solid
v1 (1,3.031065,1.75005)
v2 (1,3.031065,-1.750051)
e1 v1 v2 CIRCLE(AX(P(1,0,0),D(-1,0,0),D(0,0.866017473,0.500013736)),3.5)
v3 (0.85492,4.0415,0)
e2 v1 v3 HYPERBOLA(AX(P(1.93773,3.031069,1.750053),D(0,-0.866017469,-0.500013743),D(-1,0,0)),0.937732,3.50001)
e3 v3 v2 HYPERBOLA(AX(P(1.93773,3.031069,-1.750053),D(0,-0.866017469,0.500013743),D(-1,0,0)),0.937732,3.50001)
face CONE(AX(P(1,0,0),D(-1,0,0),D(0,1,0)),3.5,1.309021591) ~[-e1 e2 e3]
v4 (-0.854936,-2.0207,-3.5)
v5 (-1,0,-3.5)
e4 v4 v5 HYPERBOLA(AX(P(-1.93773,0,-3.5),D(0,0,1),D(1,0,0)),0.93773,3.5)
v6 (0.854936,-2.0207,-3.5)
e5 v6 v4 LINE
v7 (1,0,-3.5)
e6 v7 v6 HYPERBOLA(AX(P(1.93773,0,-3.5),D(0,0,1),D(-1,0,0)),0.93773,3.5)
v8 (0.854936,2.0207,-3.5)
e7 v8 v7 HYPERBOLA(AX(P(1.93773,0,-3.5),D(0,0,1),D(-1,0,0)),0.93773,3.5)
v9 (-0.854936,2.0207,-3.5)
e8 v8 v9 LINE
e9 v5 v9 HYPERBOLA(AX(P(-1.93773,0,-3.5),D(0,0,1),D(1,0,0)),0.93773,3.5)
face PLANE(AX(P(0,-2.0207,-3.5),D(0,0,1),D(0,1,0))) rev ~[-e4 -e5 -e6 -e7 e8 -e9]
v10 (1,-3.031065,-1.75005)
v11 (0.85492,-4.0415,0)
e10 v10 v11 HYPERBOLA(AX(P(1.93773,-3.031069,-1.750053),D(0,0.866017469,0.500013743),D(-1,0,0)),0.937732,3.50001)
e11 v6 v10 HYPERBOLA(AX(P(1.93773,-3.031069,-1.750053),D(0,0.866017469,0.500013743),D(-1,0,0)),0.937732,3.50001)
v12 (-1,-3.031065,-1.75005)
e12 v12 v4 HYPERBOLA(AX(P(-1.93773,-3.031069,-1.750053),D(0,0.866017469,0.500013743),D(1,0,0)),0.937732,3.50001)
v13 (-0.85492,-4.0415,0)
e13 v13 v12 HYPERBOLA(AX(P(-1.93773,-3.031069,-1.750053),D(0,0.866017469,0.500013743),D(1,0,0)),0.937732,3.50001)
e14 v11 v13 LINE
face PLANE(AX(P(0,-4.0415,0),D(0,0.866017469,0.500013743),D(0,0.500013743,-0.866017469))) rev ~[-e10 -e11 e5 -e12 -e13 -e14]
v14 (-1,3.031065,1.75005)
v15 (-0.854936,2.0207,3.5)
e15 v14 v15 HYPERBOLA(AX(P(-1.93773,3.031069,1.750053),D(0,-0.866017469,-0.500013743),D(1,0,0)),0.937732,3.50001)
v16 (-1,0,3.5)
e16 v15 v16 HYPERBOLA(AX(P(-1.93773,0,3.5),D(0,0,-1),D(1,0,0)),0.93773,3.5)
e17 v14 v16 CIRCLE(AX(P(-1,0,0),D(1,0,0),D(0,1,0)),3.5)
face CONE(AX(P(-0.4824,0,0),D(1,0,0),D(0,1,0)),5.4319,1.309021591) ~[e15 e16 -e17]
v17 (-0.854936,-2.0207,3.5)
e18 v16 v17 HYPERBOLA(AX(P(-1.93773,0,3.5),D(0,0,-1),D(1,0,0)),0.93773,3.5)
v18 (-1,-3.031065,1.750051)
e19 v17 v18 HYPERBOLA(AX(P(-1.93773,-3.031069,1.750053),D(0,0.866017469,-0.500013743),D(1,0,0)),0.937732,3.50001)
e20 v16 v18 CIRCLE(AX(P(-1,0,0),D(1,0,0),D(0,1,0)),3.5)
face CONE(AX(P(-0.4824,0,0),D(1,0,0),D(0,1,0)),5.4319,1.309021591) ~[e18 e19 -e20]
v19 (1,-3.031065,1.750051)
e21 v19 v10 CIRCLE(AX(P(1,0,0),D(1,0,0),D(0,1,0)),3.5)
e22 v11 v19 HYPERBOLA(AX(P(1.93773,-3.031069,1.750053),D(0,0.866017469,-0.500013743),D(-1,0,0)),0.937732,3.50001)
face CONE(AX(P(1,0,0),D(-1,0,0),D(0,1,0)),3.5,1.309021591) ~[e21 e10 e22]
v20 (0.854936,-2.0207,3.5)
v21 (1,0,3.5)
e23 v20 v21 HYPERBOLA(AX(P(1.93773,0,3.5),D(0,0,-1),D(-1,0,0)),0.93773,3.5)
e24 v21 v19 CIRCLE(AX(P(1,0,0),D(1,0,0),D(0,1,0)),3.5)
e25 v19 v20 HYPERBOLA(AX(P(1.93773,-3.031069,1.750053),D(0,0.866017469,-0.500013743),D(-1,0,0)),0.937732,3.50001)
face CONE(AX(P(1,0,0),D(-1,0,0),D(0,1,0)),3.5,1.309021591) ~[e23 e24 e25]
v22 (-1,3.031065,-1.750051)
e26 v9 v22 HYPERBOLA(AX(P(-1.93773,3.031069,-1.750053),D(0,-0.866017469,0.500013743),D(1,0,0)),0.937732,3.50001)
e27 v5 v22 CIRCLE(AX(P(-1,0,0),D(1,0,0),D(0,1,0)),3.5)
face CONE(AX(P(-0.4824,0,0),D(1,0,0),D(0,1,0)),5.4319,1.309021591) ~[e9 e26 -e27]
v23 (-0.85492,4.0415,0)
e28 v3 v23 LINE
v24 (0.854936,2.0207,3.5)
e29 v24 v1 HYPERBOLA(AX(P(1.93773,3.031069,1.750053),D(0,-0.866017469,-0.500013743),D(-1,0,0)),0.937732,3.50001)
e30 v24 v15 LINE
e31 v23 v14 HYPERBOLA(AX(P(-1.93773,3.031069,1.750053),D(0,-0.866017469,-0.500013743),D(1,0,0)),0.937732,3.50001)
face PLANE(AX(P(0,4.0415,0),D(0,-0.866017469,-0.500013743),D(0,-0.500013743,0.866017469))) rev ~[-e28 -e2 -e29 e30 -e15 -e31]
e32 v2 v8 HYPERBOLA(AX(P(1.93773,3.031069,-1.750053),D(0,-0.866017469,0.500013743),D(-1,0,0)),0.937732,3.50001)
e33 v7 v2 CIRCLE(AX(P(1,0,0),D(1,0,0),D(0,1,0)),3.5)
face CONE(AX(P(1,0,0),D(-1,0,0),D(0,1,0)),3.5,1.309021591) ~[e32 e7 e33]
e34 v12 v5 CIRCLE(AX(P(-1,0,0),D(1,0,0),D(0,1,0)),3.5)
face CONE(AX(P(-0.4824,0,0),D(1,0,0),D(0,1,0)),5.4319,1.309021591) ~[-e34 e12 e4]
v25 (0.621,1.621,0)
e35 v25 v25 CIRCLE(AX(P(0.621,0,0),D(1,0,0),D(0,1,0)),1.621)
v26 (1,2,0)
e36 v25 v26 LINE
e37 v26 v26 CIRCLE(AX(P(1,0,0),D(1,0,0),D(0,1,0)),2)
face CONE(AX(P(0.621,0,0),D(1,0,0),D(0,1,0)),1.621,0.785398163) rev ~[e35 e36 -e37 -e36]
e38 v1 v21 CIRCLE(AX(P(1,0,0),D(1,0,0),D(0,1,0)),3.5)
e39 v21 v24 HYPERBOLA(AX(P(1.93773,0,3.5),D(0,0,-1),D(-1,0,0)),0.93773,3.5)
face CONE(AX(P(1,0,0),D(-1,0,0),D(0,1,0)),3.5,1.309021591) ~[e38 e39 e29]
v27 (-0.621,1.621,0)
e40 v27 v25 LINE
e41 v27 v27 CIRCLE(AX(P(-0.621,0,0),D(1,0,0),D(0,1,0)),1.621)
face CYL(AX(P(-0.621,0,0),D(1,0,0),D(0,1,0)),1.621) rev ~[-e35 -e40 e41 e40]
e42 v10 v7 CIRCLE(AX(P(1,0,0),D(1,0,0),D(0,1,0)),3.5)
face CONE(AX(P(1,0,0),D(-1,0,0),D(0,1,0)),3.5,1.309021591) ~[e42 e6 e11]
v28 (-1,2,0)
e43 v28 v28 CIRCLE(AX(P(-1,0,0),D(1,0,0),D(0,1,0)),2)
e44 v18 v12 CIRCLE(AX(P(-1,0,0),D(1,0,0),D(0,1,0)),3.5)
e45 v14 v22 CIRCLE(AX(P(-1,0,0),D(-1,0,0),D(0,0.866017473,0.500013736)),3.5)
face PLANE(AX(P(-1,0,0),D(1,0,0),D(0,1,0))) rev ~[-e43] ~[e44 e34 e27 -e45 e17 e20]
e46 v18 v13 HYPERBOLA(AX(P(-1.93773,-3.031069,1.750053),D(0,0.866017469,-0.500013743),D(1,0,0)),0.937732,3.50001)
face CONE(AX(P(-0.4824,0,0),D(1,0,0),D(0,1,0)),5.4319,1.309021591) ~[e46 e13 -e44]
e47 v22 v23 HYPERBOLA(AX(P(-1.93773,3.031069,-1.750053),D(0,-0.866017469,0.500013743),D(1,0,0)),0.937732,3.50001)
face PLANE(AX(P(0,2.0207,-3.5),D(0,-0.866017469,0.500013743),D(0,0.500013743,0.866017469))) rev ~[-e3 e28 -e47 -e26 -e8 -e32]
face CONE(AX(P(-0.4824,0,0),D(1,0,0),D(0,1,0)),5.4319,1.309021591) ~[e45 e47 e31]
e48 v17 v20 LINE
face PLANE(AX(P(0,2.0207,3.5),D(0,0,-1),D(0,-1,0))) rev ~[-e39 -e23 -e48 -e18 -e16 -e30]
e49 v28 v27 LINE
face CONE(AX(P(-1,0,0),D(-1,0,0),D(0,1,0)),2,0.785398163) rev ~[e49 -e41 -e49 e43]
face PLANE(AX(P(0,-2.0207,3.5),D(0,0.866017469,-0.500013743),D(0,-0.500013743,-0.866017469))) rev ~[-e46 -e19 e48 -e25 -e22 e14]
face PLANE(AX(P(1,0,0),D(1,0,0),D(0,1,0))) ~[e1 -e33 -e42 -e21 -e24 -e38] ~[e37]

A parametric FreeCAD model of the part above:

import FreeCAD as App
import Part
import Sketcher
from FreeCAD import Vector
Q = App.Units.Quantity


def add_polygon(sketch, points):
    """Adds a closed chain of lines whose ends are joined by coincident constraints."""
    first, n = sketch.GeometryCount, len(points)
    for a, b in zip(points, points[1:] + points[:1]):
        sketch.addGeometry(Part.LineSegment(App.Vector(*a, 0), App.Vector(*b, 0)), False)
    for i in range(n):
        sketch.addConstraint(Sketcher.Constraint("Coincident", first + i, 2, first + (i + 1) % n, 1))

doc = App.newDocument("Part")
body = doc.addObject("PartDesign::Body", "Body")

sketch1 = body.newObject("Sketcher::SketchObject", "Sketch")
sketch1.AttachmentSupport = (doc.getObject("XY_Plane"), [""])
sketch1.MapMode = "FlatFace"
add_polygon(sketch1, [(-1, 3.5), (-1, 2), (-0.6, 1.6), (0.6, 1.6), (1, 2), (1, 3.5), (0.5, 5.4), (-0.5, 5.4)])
sketch1.addConstraint([
    Sketcher.Constraint("Vertical", 0),
    Sketcher.Constraint("Horizontal", 2),
    Sketcher.Constraint("Vertical", 4),
    Sketcher.Constraint("Horizontal", 6),
    Sketcher.Constraint("Symmetric", 0, 2, 3, 2, -2),
    Sketcher.Constraint("Perpendicular", 1, 3),
    Sketcher.Constraint("Horizontal", 4, 2, 7, 2),
    Sketcher.Constraint("Equal", 1, 3),
    Sketcher.Constraint("Equal", 5, 7),
    Sketcher.Constraint("Distance", 5, 2.0),
    Sketcher.Constraint("DistanceY", 0, 2, 0, 1, 1.5),
    Sketcher.Constraint("DistanceX", 0, 2, -1, 1, 1.0),
    Sketcher.Constraint("DistanceY", -1, 1, 0, 2, 2.0),
    Sketcher.Constraint("DistanceX", 2, 1, 2, 2, 1.242),
    Sketcher.Constraint("DistanceX", 6, 2, 6, 1, 0.9648),
])
revolution = body.newObject("PartDesign::Revolution", "Revolution")
revolution.Profile = sketch1
revolution.ReferenceAxis = (sketch1, ["H_Axis"])
revolution.Angle = 360

sketch2 = body.newObject("Sketcher::SketchObject", "Sketch001")
sketch2.AttachmentSupport = (doc.getObject("YZ_Plane"), [""])
sketch2.MapMode = "FlatFace"
add_polygon(sketch2, [(14, 14), (-14, 14), (-14, -14), (14, -14)])
add_polygon(sketch2, [(-4, 0), (-2, 3.5), (2, 3.5), (4, 0), (2, -3.5), (-2, -3.5)])
sketch2.addConstraint([
    Sketcher.Constraint("Horizontal", 0),
    Sketcher.Constraint("Vertical", 1),
    Sketcher.Constraint("Horizontal", 2),
    Sketcher.Constraint("Vertical", 3),
    Sketcher.Constraint("Horizontal", 5),
    Sketcher.Constraint("Horizontal", 8),
    Sketcher.Constraint("Symmetric", 0, 2, 2, 2, -1, 1),
    Sketcher.Constraint("Symmetric", 4, 2, 7, 2, -1, 1),
    Sketcher.Constraint("Symmetric", 6, 2, 9, 2, -1, 1),
    Sketcher.Constraint("PointOnObject", 6, 2, -1),
    Sketcher.Constraint("Parallel", 6, 9),
    Sketcher.Constraint("Vertical", 5, 2, 7, 2),
    Sketcher.Constraint("Equal", 2, 1),
    Sketcher.Constraint("DistanceX", 0, 2, 0, 1, 28.0),
    Sketcher.Constraint("Angle", 4, Q("59.999 deg")),
    Sketcher.Constraint("DistanceY", 7, 2, 5, 2, 7.0),
    Sketcher.Constraint("DistanceX", 5, 1, 5, 2, 4.0414),
])
pocket1 = body.newObject("PartDesign::Pocket", "Pocket")
pocket1.Profile = sketch2
pocket1.Length = 2
pocket1.Midplane = True

doc.recompute()
